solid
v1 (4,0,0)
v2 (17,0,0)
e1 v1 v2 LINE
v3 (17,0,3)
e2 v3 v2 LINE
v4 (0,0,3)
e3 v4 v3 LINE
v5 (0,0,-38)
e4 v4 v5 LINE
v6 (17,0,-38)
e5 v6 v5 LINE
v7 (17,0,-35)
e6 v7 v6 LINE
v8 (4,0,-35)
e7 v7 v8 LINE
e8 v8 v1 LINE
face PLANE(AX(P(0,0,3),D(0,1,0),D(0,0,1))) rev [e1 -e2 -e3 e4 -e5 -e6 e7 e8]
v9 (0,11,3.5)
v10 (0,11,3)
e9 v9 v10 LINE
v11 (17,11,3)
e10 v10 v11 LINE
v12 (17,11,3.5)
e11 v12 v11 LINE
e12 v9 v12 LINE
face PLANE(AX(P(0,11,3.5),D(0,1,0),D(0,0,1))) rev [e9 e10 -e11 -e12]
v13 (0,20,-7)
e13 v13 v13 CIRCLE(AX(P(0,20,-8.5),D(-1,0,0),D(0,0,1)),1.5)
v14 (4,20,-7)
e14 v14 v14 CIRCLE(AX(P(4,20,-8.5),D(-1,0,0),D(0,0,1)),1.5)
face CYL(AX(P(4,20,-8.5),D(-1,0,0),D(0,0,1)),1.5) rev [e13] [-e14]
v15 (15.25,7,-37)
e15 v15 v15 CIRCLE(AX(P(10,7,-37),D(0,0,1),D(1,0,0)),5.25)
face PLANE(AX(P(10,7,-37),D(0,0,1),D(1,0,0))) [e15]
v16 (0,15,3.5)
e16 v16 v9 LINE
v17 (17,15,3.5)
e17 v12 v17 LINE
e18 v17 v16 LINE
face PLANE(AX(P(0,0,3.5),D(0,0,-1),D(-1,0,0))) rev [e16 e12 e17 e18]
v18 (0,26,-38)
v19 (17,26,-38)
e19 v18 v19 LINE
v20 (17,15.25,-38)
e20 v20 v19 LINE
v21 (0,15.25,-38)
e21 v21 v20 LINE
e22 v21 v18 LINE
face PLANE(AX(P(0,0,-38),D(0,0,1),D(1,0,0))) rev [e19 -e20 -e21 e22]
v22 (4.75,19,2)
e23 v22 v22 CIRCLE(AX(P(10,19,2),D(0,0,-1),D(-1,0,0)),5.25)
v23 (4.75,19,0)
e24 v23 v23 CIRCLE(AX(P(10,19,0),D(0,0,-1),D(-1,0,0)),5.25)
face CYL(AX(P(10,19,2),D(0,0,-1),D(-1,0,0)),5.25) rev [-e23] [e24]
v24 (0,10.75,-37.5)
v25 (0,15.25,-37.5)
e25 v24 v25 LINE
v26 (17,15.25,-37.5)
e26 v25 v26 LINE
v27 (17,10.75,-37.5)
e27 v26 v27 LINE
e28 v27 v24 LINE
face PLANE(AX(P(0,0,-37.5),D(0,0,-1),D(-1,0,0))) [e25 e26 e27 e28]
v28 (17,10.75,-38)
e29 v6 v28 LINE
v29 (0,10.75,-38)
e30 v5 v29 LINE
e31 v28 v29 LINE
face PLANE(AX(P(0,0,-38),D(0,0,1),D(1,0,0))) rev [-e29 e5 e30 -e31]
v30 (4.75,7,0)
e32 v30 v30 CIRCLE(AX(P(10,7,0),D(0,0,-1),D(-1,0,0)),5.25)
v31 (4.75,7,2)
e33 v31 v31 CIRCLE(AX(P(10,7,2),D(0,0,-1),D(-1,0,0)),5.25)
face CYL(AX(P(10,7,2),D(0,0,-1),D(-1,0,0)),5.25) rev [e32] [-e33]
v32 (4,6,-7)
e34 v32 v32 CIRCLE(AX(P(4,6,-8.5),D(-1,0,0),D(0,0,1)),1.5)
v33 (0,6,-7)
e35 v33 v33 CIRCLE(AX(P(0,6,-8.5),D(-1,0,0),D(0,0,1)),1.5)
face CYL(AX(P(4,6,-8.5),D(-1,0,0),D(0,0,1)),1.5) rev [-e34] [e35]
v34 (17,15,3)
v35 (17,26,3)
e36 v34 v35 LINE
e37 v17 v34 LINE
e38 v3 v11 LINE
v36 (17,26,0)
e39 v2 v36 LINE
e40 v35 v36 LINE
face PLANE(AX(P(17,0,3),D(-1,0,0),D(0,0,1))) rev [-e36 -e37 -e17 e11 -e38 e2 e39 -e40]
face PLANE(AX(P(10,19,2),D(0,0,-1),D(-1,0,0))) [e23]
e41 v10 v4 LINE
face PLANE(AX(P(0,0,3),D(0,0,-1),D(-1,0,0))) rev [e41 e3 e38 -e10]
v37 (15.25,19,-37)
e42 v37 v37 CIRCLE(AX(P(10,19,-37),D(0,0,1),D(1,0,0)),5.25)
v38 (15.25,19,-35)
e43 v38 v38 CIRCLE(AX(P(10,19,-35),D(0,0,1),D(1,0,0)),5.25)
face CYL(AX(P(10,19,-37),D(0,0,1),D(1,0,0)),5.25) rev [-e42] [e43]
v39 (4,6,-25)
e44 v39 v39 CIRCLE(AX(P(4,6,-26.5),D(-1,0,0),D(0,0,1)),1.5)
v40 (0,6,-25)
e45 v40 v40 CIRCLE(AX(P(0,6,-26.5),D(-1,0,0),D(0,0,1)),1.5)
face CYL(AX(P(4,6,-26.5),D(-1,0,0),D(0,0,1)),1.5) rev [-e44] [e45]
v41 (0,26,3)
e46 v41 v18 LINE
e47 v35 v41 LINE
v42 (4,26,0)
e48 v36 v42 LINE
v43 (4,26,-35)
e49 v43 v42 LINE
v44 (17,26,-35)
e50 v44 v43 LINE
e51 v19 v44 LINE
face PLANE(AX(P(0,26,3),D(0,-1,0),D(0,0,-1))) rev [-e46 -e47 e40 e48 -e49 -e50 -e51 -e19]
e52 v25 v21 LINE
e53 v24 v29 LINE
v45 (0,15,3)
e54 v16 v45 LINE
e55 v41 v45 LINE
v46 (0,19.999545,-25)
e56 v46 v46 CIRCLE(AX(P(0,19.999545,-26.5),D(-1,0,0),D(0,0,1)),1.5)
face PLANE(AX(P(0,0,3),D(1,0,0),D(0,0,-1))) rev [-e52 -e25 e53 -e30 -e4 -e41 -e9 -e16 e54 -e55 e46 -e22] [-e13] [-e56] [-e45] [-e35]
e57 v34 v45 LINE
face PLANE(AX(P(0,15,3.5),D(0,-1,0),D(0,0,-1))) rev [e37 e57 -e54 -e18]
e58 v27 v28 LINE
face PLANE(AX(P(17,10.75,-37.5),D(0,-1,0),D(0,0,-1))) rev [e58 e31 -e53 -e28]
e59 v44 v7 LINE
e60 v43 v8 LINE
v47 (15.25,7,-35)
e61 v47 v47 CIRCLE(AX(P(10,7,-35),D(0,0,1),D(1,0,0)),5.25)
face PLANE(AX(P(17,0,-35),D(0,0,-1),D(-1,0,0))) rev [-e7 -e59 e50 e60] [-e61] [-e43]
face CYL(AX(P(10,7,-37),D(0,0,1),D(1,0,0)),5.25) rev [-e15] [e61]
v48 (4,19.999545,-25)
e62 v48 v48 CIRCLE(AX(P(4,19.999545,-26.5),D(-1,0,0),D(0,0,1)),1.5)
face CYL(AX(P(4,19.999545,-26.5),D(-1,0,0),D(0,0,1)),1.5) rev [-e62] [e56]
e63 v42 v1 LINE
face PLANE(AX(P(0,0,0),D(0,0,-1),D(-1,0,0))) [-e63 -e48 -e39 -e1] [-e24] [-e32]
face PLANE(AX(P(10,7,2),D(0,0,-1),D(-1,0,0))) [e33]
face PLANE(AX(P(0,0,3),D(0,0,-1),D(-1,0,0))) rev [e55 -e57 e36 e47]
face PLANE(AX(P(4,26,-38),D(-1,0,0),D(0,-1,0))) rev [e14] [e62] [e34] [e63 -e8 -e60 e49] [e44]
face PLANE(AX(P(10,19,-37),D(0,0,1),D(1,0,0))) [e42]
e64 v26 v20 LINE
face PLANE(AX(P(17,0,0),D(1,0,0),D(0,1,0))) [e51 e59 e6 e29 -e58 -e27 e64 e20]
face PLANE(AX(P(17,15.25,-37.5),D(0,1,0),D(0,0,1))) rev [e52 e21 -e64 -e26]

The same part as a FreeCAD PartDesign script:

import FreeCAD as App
import Part
import Sketcher

V = App.Vector
Q = App.Units.Quantity


def add_polygon(sketch, points):
    """Adds a closed chain of lines whose ends are joined by coincident constraints."""
    first, n = sketch.GeometryCount, len(points)
    for a, b in zip(points, points[1:] + points[:1]):
        sketch.addGeometry(Part.LineSegment(App.Vector(*a, 0), App.Vector(*b, 0)), False)
    for i in range(n):
        sketch.addConstraint(Sketcher.Constraint("Coincident", first + i, 2, first + (i + 1) % n, 1))

doc = App.newDocument("Part")
body = doc.addObject("PartDesign::Body", "Body")

# Sketch on XY plane
sketch1 = doc.addObject("Sketcher::SketchObject", "Sketch")
body.addObject(sketch1)
sketch1.AttachmentSupport = (doc.XY_Plane, [""])
sketch1.MapMode = "FlatFace"
add_polygon(sketch1, [(0, 26), (0, 0), (17, 0), (17, 26)])  # lines 0-3
sketch1.addConstraint([
    Sketcher.Constraint("Vertical", 0),
    Sketcher.Constraint("Horizontal", 1),
    Sketcher.Constraint("Vertical", 2),
    Sketcher.Constraint("Horizontal", 3),
    Sketcher.Constraint("Coincident", 0, 2, -1, 1),
    Sketcher.Constraint("DistanceX", 1, 1, 1, 2, Q("17 mm")),
    Sketcher.Constraint("DistanceY", 0, 2, 0, 1, Q("26 mm")),
])
pad1 = doc.addObject("PartDesign::Pad", "Pad")
body.addObject(pad1)
pad1.Profile = sketch1
pad1.Length = 3

# Sketch on XY plane
sketch2 = doc.addObject("Sketcher::SketchObject", "Sketch001")
body.addObject(sketch2)
sketch2.AttachmentSupport = (doc.XY_Plane, [""])
sketch2.MapMode = "FlatFace"
add_polygon(sketch2, [(4, 26), (4, 0), (0, 0), (0, 26)])  # lines 0-3
sketch2.addConstraint([
    Sketcher.Constraint("Vertical", 0),
    Sketcher.Constraint("Horizontal", 1),
    Sketcher.Constraint("Vertical", 2),
    Sketcher.Constraint("Horizontal", 3),
    Sketcher.Constraint("Coincident", 1, 2, -1, 1),
    Sketcher.Constraint("DistanceX", 1, 2, 1, 1, Q("4 mm")),
    Sketcher.Constraint("DistanceY", 0, 2, 0, 1, Q("26 mm")),
])
pad2 = doc.addObject("PartDesign::Pad", "Pad001")
body.addObject(pad2)
pad2.Profile = sketch2
pad2.Length = 38
pad2.Reversed = True

# Sketch on YZ plane
sketch3 = doc.addObject("Sketcher::SketchObject", "Sketch002")
body.addObject(sketch3)
sketch3.AttachmentSupport = (doc.YZ_Plane, [""])
sketch3.MapMode = "FlatFace"
sketch3.addGeometry([
    Part.Circle(V(20, -8.5, 0), V(0, 0, 1), 1.5),
    Part.Circle(V(6, -8.5, 0), V(0, 0, 1), 1.5),
], False)
sketch3.addConstraint([
    Sketcher.Constraint("Equal", 0, 1),
    Sketcher.Constraint("Horizontal", 0, 3, 1, 3),
    Sketcher.Constraint("Diameter", 0, Q("3 mm")),
    Sketcher.Constraint("DistanceX", -1, 1, 0, 3, Q("20 mm")),
    Sketcher.Constraint("DistanceX", -1, 1, 1, 3, Q("6 mm")),
    Sketcher.Constraint("DistanceY", 0, 3, -1, 1, Q("8.5 mm")),
])
pocket1 = doc.addObject("PartDesign::Pocket", "Pocket")
body.addObject(pocket1)
pocket1.Profile = sketch3
pocket1.Length = 4
pocket1.Reversed = True

# Sketch on YZ plane
sketch4 = doc.addObject("Sketcher::SketchObject", "Sketch003")
body.addObject(sketch4)
sketch4.AttachmentSupport = (doc.YZ_Plane, [""])
sketch4.MapMode = "FlatFace"
sketch4.addGeometry([
    Part.Circle(V(19.999545, -26.5, 0), V(0, 0, 1), 1.5),
    Part.Circle(V(6, -26.5, 0), V(0, 0, 1), 1.5),
], False)
sketch4.addConstraint([
    Sketcher.Constraint("Equal", 0, 1),
    Sketcher.Constraint("Horizontal", 0, 3, 1, 3),
    Sketcher.Constraint("Diameter", 0, Q("3 mm")),
    Sketcher.Constraint("DistanceX", -1, 1, 1, 3, Q("6 mm")),
    Sketcher.Constraint("DistanceY", 0, 3, -1, 1, Q("26.5 mm")),
    Sketcher.Constraint("DistanceX", -1, 1, 0, 3, Q("19.999545 mm")),
])
pocket2 = doc.addObject("PartDesign::Pocket", "Pocket001")
body.addObject(pocket2)
pocket2.Profile = sketch4
pocket2.Length = 4
pocket2.Reversed = True

# Sketch on YZ plane
sketch5 = doc.addObject("Sketcher::SketchObject", "Sketch004")
body.addObject(sketch5)
sketch5.AttachmentSupport = (doc.YZ_Plane, [""])
sketch5.MapMode = "FlatFace"
sketch5.AttachmentOffset = App.Placement(V(0, 0, 4), App.Rotation())
add_polygon(sketch5, [(26, -35), (0, -35), (0, -38), (26, -38)])  # lines 0-3
sketch5.addConstraint([
    Sketcher.Constraint("Horizontal", 0),
    Sketcher.Constraint("Vertical", 1),
    Sketcher.Constraint("Horizontal", 2),
    Sketcher.Constraint("Vertical", 3),
    Sketcher.Constraint("PointOnObject", 0, 2, -2),
    Sketcher.Constraint("DistanceX", 0, 2, 0, 1, Q("26 mm")),
    Sketcher.Constraint("DistanceY", 1, 2, 1, 1, Q("3 mm")),
    Sketcher.Constraint("DistanceY", 0, 2, -1, 1, Q("35 mm")),
])
pad3 = doc.addObject("PartDesign::Pad", "Pad002")
body.addObject(pad3)
pad3.Profile = sketch5
pad3.Length = 13

# Sketch on XY plane
sketch6 = doc.addObject("Sketcher::SketchObject", "Sketch005")
body.addObject(sketch6)
sketch6.AttachmentSupport = (doc.XY_Plane, [""])
sketch6.MapMode = "FlatFace"
sketch6.addGeometry([
    Part.Circle(V(10, 7, 0), V(0, 0, 1), 5.25),
    Part.Circle(V(10, 19, 0), V(0, 0, 1), 5.25),
], False)
sketch6.addConstraint([
    Sketcher.Constraint("Equal", 0, 1),
    Sketcher.Constraint("Vertical", 0, 3, 1, 3),
    Sketcher.Constraint("Diameter", 0, Q("10.5 mm")),
    Sketcher.Constraint("DistanceX", -1, 1, 0, 3, Q("10 mm")),
    Sketcher.Constraint("DistanceY", -1, 1, 0, 3, Q("7 mm")),
    Sketcher.Constraint("DistanceY", -1, 1, 1, 3, Q("19 mm")),
])
pocket3 = doc.addObject("PartDesign::Pocket", "Pocket002")
body.addObject(pocket3)
pocket3.Profile = sketch6
pocket3.Length = 2
pocket3.Reversed = True

# Sketch on XY plane
sketch7 = doc.addObject("Sketcher::SketchObject", "Sketch006")
body.addObject(sketch7)
sketch7.AttachmentSupport = (doc.XY_Plane, [""])
sketch7.MapMode = "FlatFace"
sketch7.AttachmentOffset = App.Placement(V(0, 0, -37), App.Rotation())
sketch7.addGeometry([
    Part.Circle(V(10, 19, 0), V(0, 0, 1), 5.25),
    Part.Circle(V(10, 7, 0), V(0, 0, 1), 5.25),
], False)
sketch7.addConstraint([
    Sketcher.Constraint("Equal", 0, 1),
    Sketcher.Constraint("Vertical", 0, 3, 1, 3),
    Sketcher.Constraint("Diameter", 0, Q("10.5 mm")),
    Sketcher.Constraint("DistanceX", -1, 1, 0, 3, Q("10 mm")),
    Sketcher.Constraint("DistanceY", -1, 1, 0, 3, Q("19 mm")),
    Sketcher.Constraint("DistanceY", -1, 1, 1, 3, Q("7 mm")),
])
pocket4 = doc.addObject("PartDesign::Pocket", "Pocket003")
body.addObject(pocket4)
pocket4.Profile = sketch7
pocket4.Length = 2
pocket4.Reversed = True

# Sketch on XY plane
sketch8 = doc.addObject("Sketcher::SketchObject", "Sketch007")
body.addObject(sketch8)
sketch8.AttachmentSupport = (doc.XY_Plane, [""])
sketch8.MapMode = "FlatFace"
sketch8.AttachmentOffset = App.Placement(V(0, 0, 3), App.Rotation())
add_polygon(sketch8, [(0, 15), (0, 11), (17, 11), (17, 15)])  # lines 0-3
sketch8.addConstraint([
    Sketcher.Constraint("Vertical", 0),
    Sketcher.Constraint("Horizontal", 1),
    Sketcher.Constraint("Vertical", 2),
    Sketcher.Constraint("Horizontal", 3),
    Sketcher.Constraint("PointOnObject", 0, 2, -2),
    Sketcher.Constraint("DistanceX", 1, 1, 1, 2, Q("17 mm")),
    Sketcher.Constraint("DistanceY", 0, 2, 0, 1, Q("4 mm")),
    Sketcher.Constraint("DistanceY", -1, 1, 0, 2, Q("11 mm")),
])
pad4 = doc.addObject("PartDesign::Pad", "Pad003")
body.addObject(pad4)
pad4.Profile = sketch8
pad4.Length = 0.5

# Sketch on XY plane
sketch9 = doc.addObject("Sketcher::SketchObject", "Sketch008")
body.addObject(sketch9)
sketch9.AttachmentSupport = (doc.XY_Plane, [""])
sketch9.MapMode = "FlatFace"
sketch9.AttachmentOffset = App.Placement(V(0, 0, -38), App.Rotation())
add_polygon(sketch9, [(17, 15.25), (17, 10.75), (0, 10.75), (0, 15.25)])  # lines 0-3
sketch9.addConstraint([
    Sketcher.Constraint("Vertical", 0),
    Sketcher.Constraint("Horizontal", 1),
    Sketcher.Constraint("Vertical", 2),
    Sketcher.Constraint("Horizontal", 3),
    Sketcher.Constraint("PointOnObject", 1, 2, -2),
    Sketcher.Constraint("DistanceX", 1, 2, 1, 1, Q("17 mm")),
    Sketcher.Constraint("DistanceY", 0, 2, 0, 1, Q("4.5 mm")),
    Sketcher.Constraint("DistanceY", -1, 1, 0, 2, Q("10.75 mm")),
])
pocket5 = doc.addObject("PartDesign::Pocket", "Pocket004")
body.addObject(pocket5)
pocket5.Profile = sketch9
pocket5.Length = 0.5
pocket5.Reversed = True

doc.recompute()
